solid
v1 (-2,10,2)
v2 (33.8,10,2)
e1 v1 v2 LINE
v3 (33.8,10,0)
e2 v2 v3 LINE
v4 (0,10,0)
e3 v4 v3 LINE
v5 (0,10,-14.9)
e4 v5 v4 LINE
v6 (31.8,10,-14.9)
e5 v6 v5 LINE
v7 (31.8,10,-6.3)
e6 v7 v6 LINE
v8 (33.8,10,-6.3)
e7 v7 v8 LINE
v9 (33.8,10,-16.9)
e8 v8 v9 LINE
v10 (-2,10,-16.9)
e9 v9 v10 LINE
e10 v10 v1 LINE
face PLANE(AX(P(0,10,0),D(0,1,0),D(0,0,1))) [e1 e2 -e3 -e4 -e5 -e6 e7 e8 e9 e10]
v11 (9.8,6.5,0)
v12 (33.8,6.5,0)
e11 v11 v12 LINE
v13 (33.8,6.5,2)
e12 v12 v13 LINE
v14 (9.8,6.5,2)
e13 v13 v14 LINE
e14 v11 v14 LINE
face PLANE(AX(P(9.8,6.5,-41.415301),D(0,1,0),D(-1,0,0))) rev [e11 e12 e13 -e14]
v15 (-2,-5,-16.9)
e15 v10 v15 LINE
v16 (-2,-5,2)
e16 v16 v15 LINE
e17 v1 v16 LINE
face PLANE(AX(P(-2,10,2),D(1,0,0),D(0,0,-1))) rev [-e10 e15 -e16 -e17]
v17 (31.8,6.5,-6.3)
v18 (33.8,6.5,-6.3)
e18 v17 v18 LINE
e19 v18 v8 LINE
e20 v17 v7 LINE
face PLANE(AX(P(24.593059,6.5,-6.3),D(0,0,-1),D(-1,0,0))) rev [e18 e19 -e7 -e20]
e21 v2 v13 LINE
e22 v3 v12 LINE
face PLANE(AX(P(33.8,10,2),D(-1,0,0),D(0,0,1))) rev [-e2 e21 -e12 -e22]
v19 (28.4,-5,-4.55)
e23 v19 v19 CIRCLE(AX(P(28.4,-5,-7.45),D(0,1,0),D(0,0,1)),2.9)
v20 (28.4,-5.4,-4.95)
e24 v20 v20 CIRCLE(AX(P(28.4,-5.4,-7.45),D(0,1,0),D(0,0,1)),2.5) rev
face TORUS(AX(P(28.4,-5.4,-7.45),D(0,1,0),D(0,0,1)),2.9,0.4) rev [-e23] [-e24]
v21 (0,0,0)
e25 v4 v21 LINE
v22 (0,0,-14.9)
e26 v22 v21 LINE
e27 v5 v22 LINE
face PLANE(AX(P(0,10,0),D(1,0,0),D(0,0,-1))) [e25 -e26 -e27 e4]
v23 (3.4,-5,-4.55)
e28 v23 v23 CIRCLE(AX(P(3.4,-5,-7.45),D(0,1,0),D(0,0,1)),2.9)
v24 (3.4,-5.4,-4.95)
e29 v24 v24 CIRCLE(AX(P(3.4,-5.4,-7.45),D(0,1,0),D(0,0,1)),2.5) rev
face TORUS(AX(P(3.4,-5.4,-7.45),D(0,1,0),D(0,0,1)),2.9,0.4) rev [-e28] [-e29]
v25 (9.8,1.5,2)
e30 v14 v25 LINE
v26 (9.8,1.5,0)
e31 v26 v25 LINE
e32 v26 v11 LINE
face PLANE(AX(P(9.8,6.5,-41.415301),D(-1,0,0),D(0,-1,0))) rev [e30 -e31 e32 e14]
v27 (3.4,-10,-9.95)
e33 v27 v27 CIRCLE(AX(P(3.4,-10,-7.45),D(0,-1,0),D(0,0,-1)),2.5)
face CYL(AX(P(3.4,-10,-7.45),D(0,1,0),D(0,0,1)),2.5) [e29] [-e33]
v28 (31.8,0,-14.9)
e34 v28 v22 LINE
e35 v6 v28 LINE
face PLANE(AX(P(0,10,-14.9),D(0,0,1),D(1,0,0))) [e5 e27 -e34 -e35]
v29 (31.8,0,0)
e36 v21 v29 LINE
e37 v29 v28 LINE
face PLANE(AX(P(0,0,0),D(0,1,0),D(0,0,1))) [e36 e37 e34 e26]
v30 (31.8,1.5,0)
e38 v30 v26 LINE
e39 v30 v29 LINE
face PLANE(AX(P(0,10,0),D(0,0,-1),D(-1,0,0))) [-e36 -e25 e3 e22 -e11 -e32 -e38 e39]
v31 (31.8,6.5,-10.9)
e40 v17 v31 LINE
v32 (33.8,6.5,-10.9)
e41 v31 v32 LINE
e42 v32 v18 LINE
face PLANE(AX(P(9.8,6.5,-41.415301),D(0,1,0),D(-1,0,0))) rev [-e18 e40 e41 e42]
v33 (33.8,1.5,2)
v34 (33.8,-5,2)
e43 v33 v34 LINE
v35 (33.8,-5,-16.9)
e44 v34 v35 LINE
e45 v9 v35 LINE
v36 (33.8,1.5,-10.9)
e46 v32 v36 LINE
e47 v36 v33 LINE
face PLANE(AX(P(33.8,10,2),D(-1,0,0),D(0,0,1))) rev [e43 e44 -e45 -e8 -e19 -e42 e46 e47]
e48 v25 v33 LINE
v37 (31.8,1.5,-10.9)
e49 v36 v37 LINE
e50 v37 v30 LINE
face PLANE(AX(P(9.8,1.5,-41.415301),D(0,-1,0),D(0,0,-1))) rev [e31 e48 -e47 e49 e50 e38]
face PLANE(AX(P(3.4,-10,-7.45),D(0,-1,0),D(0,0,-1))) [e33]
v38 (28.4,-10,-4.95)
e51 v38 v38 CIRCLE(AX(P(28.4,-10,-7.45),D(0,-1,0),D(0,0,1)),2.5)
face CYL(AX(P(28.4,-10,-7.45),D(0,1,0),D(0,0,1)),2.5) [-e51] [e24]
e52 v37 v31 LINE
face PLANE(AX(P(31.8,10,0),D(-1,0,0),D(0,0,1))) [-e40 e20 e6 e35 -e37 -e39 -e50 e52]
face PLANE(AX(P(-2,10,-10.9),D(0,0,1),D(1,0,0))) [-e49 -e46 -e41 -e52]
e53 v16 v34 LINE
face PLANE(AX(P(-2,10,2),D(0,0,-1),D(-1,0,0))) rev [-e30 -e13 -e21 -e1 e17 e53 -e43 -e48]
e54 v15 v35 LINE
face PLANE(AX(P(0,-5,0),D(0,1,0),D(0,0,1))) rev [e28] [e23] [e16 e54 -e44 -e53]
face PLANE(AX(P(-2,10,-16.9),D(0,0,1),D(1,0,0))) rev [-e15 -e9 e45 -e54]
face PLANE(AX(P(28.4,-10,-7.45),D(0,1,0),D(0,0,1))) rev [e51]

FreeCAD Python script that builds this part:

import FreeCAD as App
import Part
import Sketcher
from FreeCAD import Vector


def edges_at(feature, points):
    """Names of the edges that pass closest to the given points."""
    edges = feature.Shape.Edges
    near = lambda p: min(range(len(edges)), key=lambda i: edges[i].distToShape(Part.Vertex(*p))[0])
    return sorted({f"Edge{near(p) + 1}" for p in points})

doc = App.newDocument("Part")
body = doc.addObject("PartDesign::Body", "Body")

sketch1 = body.newObject("Sketcher::SketchObject", "Sketch")
sketch1.AttachmentSupport = (doc.getObject("XZ_Plane"), [""])
sketch1.MapMode = "FlatFace"
sketch1.addGeometry(Part.LineSegment(Vector(-2, -17, 0), Vector(-2, 2, 0)), False)
sketch1.addGeometry(Part.LineSegment(Vector(-2, 2, 0), Vector(34, 2, 0)), False)
sketch1.addGeometry(Part.LineSegment(Vector(34, 2, 0), Vector(34, -17, 0)), False)
sketch1.addGeometry(Part.LineSegment(Vector(34, -17, 0), Vector(-2, -17, 0)), False)
sketch1.addGeometry(Part.LineSegment(Vector(32, 0, 0), Vector(0, 0, 0)), False)
sketch1.addGeometry(Part.LineSegment(Vector(0, 0, 0), Vector(0, -15, 0)), False)
sketch1.addGeometry(Part.LineSegment(Vector(0, -15, 0), Vector(32, -15, 0)), False)
sketch1.addGeometry(Part.LineSegment(Vector(32, -15, 0), Vector(32, 0, 0)), False)
sketch1.addConstraint(Sketcher.Constraint("Coincident", 0, 2, 1, 1))
sketch1.addConstraint(Sketcher.Constraint("Coincident", 1, 2, 2, 1))
sketch1.addConstraint(Sketcher.Constraint("Coincident", 2, 2, 3, 1))
sketch1.addConstraint(Sketcher.Constraint("Coincident", 3, 2, 0, 1))
sketch1.addConstraint(Sketcher.Constraint("Coincident", 4, 2, 5, 1))
sketch1.addConstraint(Sketcher.Constraint("Coincident", 5, 2, 6, 1))
sketch1.addConstraint(Sketcher.Constraint("Coincident", 6, 2, 7, 1))
sketch1.addConstraint(Sketcher.Constraint("Coincident", 7, 2, 4, 1))
sketch1.addConstraint(Sketcher.Constraint("Vertical", 0))
sketch1.addConstraint(Sketcher.Constraint("Horizontal", 1))
sketch1.addConstraint(Sketcher.Constraint("Vertical", 2))
sketch1.addConstraint(Sketcher.Constraint("Horizontal", 3))
sketch1.addConstraint(Sketcher.Constraint("Horizontal", 4))
sketch1.addConstraint(Sketcher.Constraint("Vertical", 5))
sketch1.addConstraint(Sketcher.Constraint("Horizontal", 6))
sketch1.addConstraint(Sketcher.Constraint("Vertical", 7))
sketch1.addConstraint(Sketcher.Constraint("Coincident", 4, 2, -1, 1))
sketch1.addConstraint(Sketcher.Constraint("DistanceX", 1, 1, 1, 2, 35.8))
sketch1.addConstraint(Sketcher.Constraint("DistanceX", 4, 2, 4, 1, 31.8))
sketch1.addConstraint(Sketcher.Constraint("DistanceY", 0, 1, 0, 2, 18.9))
sketch1.addConstraint(Sketcher.Constraint("DistanceY", 5, 2, 5, 1, 14.9))
sketch1.addConstraint(Sketcher.Constraint("DistanceX", 0, 2, -1, 1, 2.0))
sketch1.addConstraint(Sketcher.Constraint("DistanceY", -1, 1, 0, 2, 2.0))
pad1 = body.newObject("PartDesign::Pad", "Pad")
pad1.Profile = sketch1
pad1.Length = 10
pad1.Reversed = True

sketch2 = body.newObject("Sketcher::SketchObject", "Sketch001")
sketch2.AttachmentSupport = (doc.getObject("XZ_Plane"), [""])
sketch2.MapMode = "FlatFace"
sketch2.addGeometry(Part.LineSegment(Vector(-2, -17, 0), Vector(-2, 2, 0)), False)
sketch2.addGeometry(Part.LineSegment(Vector(-2, 2, 0), Vector(34, 2, 0)), False)
sketch2.addGeometry(Part.LineSegment(Vector(34, 2, 0), Vector(34, -17, 0)), False)
sketch2.addGeometry(Part.LineSegment(Vector(34, -17, 0), Vector(-2, -17, 0)), False)
sketch2.addConstraint(Sketcher.Constraint("Coincident", 0, 2, 1, 1))
sketch2.addConstraint(Sketcher.Constraint("Coincident", 1, 2, 2, 1))
sketch2.addConstraint(Sketcher.Constraint("Coincident", 2, 2, 3, 1))
sketch2.addConstraint(Sketcher.Constraint("Coincident", 3, 2, 0, 1))
sketch2.addConstraint(Sketcher.Constraint("Vertical", 0))
sketch2.addConstraint(Sketcher.Constraint("Horizontal", 1))
sketch2.addConstraint(Sketcher.Constraint("Vertical", 2))
sketch2.addConstraint(Sketcher.Constraint("Horizontal", 3))
sketch2.addConstraint(Sketcher.Constraint("DistanceX", 1, 1, 1, 2, 35.8))
sketch2.addConstraint(Sketcher.Constraint("DistanceY", 0, 1, 0, 2, 18.9))
sketch2.addConstraint(Sketcher.Constraint("DistanceX", 0, 2, -1, 1, 2.0))
sketch2.addConstraint(Sketcher.Constraint("DistanceY", -1, 1, 0, 2, 2.0))
pad2 = body.newObject("PartDesign::Pad", "Pad001")
pad2.Profile = sketch2
pad2.Length = 5

sketch3 = body.newObject("Sketcher::SketchObject", "Sketch002")
sketch3.AttachmentSupport = (doc.getObject("XY_Plane"), [""])
sketch3.MapMode = "FlatFace"
sketch3.AttachmentOffset = App.Placement(Vector(0, 0, 2), App.Rotation())
sketch3.addGeometry(Part.LineSegment(Vector(10, 6, 0), Vector(10, 2, 0)), False)
sketch3.addGeometry(Part.LineSegment(Vector(10, 2, 0), Vector(34, 2, 0)), False)
sketch3.addGeometry(Part.LineSegment(Vector(34, 2, 0), Vector(34, 6, 0)), False)
sketch3.addGeometry(Part.LineSegment(Vector(34, 6, 0), Vector(10, 6, 0)), False)
sketch3.addConstraint(Sketcher.Constraint("Coincident", 0, 2, 1, 1))
sketch3.addConstraint(Sketcher.Constraint("Coincident", 1, 2, 2, 1))
sketch3.addConstraint(Sketcher.Constraint("Coincident", 2, 2, 3, 1))
sketch3.addConstraint(Sketcher.Constraint("Coincident", 3, 2, 0, 1))
sketch3.addConstraint(Sketcher.Constraint("Vertical", 0))
sketch3.addConstraint(Sketcher.Constraint("Horizontal", 1))
sketch3.addConstraint(Sketcher.Constraint("Vertical", 2))
sketch3.addConstraint(Sketcher.Constraint("Horizontal", 3))
sketch3.addConstraint(Sketcher.Constraint("DistanceX", 1, 1, 1, 2, 24.0))
sketch3.addConstraint(Sketcher.Constraint("DistanceY", 0, 2, 0, 1, 5.0))
sketch3.addConstraint(Sketcher.Constraint("DistanceX", -1, 1, 0, 2, 9.8))
sketch3.addConstraint(Sketcher.Constraint("DistanceY", -1, 1, 0, 2, 1.5))
pocket1 = body.newObject("PartDesign::Pocket", "Pocket")
pocket1.Profile = sketch3
pocket1.Length = 12.9

sketch4 = body.newObject("Sketcher::SketchObject", "Sketch003")
sketch4.AttachmentSupport = (doc.getObject("YZ_Plane"), [""])
sketch4.MapMode = "FlatFace"
sketch4.AttachmentOffset = App.Placement(Vector(0, 0, 33.8), App.Rotation())
sketch4.addGeometry(Part.LineSegment(Vector(10, 0, 0), Vector(6.5, 0, 0)), False)
sketch4.addGeometry(Part.LineSegment(Vector(6.5, 0, 0), Vector(6.5, -6.3, 0)), False)
sketch4.addGeometry(Part.LineSegment(Vector(6.5, -6.3, 0), Vector(10, -6.3, 0)), False)
sketch4.addGeometry(Part.LineSegment(Vector(10, -6.3, 0), Vector(10, 0, 0)), False)
sketch4.addConstraint(Sketcher.Constraint("Coincident", 0, 2, 1, 1))
sketch4.addConstraint(Sketcher.Constraint("Coincident", 1, 2, 2, 1))
sketch4.addConstraint(Sketcher.Constraint("Coincident", 2, 2, 3, 1))
sketch4.addConstraint(Sketcher.Constraint("Coincident", 3, 2, 0, 1))
sketch4.addConstraint(Sketcher.Constraint("Horizontal", 0))
sketch4.addConstraint(Sketcher.Constraint("Vertical", 1))
sketch4.addConstraint(Sketcher.Constraint("Horizontal", 2))
sketch4.addConstraint(Sketcher.Constraint("Vertical", 3))
sketch4.addConstraint(Sketcher.Constraint("PointOnObject", 0, 2, -1))
sketch4.addConstraint(Sketcher.Constraint("DistanceX", 0, 2, 0, 1, 3.5))
sketch4.addConstraint(Sketcher.Constraint("DistanceY", 1, 2, 1, 1, 6.3))
sketch4.addConstraint(Sketcher.Constraint("DistanceX", -1, 1, 2, 2, 10.0))
pocket2 = body.newObject("PartDesign::Pocket", "Pocket001")
pocket2.Profile = sketch4
pocket2.Length = 2

sketch5 = body.newObject("Sketcher::SketchObject", "Sketch004")
sketch5.AttachmentSupport = (doc.getObject("XZ_Plane"), [""])
sketch5.MapMode = "FlatFace"
sketch5.AttachmentOffset = App.Placement(Vector(0, 0, 5), App.Rotation())
sketch5.addGeometry(Part.Circle(Vector(3.4, -7.5, 0), Vector(0, 0, 1), 2.5), False)
sketch5.addGeometry(Part.Circle(Vector(28.4, -7.5, 0), Vector(0, 0, 1), 2.5), False)
sketch5.addConstraint(Sketcher.Constraint("Equal", 0, 1))
sketch5.addConstraint(Sketcher.Constraint("Horizontal", 0, 3, 1, 3))
sketch5.addConstraint(Sketcher.Constraint("Diameter", 0, 5.0))
sketch5.addConstraint(Sketcher.Constraint("DistanceX", 0, 3, 1, 3, 25.0))
sketch5.addConstraint(Sketcher.Constraint("DistanceX", -1, 1, 0, 3, 3.4))
sketch5.addConstraint(Sketcher.Constraint("DistanceY", 0, 3, -1, 1, 7.45))
pad3 = body.newObject("PartDesign::Pad", "Pad002")
pad3.Profile = sketch5
pad3.Length = 5
doc.recompute()

fillet = body.newObject("PartDesign::Fillet", "Fillet")
fillet.Base = (pad3, edges_at(pad3, [(3.4, -5, -9.95), (28.4, -5, -9.95)]))
fillet.Radius = 0.4

doc.recompute()
